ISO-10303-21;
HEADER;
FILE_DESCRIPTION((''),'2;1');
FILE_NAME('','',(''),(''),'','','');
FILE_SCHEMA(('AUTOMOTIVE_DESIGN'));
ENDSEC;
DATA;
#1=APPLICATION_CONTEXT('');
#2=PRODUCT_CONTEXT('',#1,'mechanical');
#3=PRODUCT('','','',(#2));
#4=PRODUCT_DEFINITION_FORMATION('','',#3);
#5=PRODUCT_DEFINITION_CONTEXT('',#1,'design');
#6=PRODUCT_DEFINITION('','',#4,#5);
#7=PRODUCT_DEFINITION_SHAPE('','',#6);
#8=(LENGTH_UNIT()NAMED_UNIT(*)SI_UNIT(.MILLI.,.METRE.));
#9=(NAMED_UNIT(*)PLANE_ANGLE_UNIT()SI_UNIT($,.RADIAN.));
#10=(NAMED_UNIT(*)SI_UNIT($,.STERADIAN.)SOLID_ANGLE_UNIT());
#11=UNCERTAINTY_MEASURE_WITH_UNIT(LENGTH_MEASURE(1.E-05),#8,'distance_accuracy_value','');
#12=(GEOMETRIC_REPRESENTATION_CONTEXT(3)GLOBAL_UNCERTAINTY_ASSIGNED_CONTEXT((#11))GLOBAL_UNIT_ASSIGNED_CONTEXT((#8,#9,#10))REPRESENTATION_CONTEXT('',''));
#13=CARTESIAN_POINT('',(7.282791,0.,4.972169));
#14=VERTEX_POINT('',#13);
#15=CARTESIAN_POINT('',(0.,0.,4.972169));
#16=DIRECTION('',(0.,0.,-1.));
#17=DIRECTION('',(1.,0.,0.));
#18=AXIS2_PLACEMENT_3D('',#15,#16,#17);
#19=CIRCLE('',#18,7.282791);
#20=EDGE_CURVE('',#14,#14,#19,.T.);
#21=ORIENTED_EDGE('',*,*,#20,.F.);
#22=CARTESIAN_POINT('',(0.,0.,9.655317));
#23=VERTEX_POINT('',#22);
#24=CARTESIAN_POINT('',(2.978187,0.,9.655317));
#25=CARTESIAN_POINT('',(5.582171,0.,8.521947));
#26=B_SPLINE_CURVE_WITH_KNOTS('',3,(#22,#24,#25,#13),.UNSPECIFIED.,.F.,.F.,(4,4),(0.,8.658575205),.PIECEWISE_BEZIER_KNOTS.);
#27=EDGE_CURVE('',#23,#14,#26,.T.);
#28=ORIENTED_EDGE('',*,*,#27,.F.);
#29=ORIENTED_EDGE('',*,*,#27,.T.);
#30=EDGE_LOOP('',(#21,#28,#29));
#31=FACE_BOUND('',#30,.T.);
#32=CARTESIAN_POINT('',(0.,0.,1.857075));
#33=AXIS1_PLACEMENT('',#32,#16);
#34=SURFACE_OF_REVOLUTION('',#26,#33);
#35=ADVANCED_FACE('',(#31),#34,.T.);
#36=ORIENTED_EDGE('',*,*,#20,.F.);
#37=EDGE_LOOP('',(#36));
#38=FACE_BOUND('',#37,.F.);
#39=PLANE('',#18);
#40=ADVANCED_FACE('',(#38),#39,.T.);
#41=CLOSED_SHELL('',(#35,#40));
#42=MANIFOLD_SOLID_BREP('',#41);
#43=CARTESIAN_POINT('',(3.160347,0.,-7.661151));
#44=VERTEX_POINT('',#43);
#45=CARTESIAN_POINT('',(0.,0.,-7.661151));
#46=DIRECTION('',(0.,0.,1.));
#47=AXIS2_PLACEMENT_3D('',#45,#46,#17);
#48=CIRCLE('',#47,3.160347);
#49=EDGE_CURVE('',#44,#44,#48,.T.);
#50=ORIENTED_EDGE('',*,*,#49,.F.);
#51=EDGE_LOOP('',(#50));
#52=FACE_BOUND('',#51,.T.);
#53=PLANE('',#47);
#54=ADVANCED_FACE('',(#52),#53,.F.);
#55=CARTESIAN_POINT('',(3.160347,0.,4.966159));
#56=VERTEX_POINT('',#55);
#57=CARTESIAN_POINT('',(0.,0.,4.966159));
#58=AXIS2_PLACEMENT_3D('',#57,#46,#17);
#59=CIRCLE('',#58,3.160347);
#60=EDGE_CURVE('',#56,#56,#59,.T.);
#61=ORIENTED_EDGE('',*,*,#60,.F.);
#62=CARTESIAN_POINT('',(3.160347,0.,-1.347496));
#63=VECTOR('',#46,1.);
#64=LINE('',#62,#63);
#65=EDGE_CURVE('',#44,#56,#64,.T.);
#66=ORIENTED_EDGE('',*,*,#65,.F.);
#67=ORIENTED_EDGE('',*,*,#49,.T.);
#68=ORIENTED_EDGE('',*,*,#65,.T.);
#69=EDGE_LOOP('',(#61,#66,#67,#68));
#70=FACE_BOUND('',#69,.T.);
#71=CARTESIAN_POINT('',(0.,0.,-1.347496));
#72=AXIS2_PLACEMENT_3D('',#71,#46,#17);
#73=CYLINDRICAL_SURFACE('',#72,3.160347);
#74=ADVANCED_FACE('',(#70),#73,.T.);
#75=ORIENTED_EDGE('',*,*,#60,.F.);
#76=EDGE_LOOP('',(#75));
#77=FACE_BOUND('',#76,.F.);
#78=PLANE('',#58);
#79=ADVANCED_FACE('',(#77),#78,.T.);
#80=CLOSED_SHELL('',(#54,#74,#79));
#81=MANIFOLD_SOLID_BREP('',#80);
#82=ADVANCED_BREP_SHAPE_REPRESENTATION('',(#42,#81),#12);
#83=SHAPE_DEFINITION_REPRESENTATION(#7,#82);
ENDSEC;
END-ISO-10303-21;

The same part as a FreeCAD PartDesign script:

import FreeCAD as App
import Part
import Sketcher

V = App.Vector

doc = App.newDocument("Part")
body = doc.addObject("PartDesign::Body", "Body")

# Sketch on XZ plane
sketch1 = body.newObject("Sketcher::SketchObject", "Sketch")
sketch1.AttachmentSupport = (doc.getObject("XZ_Plane"), [""])
sketch1.MapMode = "FlatFace"
sketch1.addGeometry(Part.LineSegment(V(0, 9.655317, 0), V(0, 4.972169, 0)), False)
sketch1.addGeometry(Part.LineSegment(V(0, 4.972169, 0), V(7.282791, 4.972169, 0)), False)
sketch1.addGeometry(Part.BSplineCurve([V(0, 9.655317, 0), V(2.978187, 9.655317, 0), V(5.582171, 8.521947, 0), V(7.282791, 4.972169, 0)], [4, 4], [0, 8.658575205], False, 3, [1, 1, 1, 1], False), False)
sketch1.addConstraint(Sketcher.Constraint("Block", 2))
sketch1.addConstraint(Sketcher.Constraint("Coincident", 0, 2, 1, 1))
sketch1.addConstraint(Sketcher.Constraint("Coincident", 1, 2, 2, 2))
sketch1.addConstraint(Sketcher.Constraint("Coincident", 2, 1, 0, 1))
sketch1.addConstraint(Sketcher.Constraint("Vertical", 0))
sketch1.addConstraint(Sketcher.Constraint("Horizontal", 1))
revolution = body.newObject("PartDesign::Revolution", "Revolution")
revolution.Profile = sketch1
revolution.ReferenceAxis = (sketch1, ["V_Axis"])
revolution.Angle = 360
body2 = doc.addObject("PartDesign::Body", "Body001")

# Sketch on XZ plane
sketch2 = body2.newObject("Sketcher::SketchObject", "Sketch001")
sketch2.AttachmentSupport = (doc.getObject("XZ_Plane001"), [""])
sketch2.MapMode = "FlatFace"
sketch2.addGeometry(Part.LineSegment(V(0, 4.966159, 0), V(0, -7.661151, 0)), False)
sketch2.addGeometry(Part.LineSegment(V(0, -7.661151, 0), V(3.160347, -7.661151, 0)), False)
sketch2.addGeometry(Part.LineSegment(V(3.160347, -7.661151, 0), V(3.160347, 4.966159, 0)), False)
sketch2.addGeometry(Part.LineSegment(V(3.160347, 4.966159, 0), V(0, 4.966159, 0)), False)
sketch2.addConstraint(Sketcher.Constraint("Coincident", 0, 2, 1, 1))
sketch2.addConstraint(Sketcher.Constraint("Coincident", 1, 2, 2, 1))
sketch2.addConstraint(Sketcher.Constraint("Coincident", 2, 2, 3, 1))
sketch2.addConstraint(Sketcher.Constraint("Coincident", 3, 2, 0, 1))
sketch2.addConstraint(Sketcher.Constraint("Vertical", 0))
sketch2.addConstraint(Sketcher.Constraint("Horizontal", 1))
sketch2.addConstraint(Sketcher.Constraint("Vertical", 2))
sketch2.addConstraint(Sketcher.Constraint("Horizontal", 3))
sketch2.addConstraint(Sketcher.Constraint("PointOnObject", 0, 2, -2))
sketch2.addConstraint(Sketcher.Constraint("DistanceY", 0, 2, 0, 1, 12.62731))
sketch2.addConstraint(Sketcher.Constraint("DistanceX", 1, 1, 1, 2, 3.160347))
sketch2.addConstraint(Sketcher.Constraint("DistanceY", 0, 2, -1, 1, 7.661151))
revolution2 = body2.newObject("PartDesign::Revolution", "Revolution001")
revolution2.Profile = sketch2
revolution2.ReferenceAxis = (sketch2, ["V_Axis"])
revolution2.Angle = 360

doc.recompute()
